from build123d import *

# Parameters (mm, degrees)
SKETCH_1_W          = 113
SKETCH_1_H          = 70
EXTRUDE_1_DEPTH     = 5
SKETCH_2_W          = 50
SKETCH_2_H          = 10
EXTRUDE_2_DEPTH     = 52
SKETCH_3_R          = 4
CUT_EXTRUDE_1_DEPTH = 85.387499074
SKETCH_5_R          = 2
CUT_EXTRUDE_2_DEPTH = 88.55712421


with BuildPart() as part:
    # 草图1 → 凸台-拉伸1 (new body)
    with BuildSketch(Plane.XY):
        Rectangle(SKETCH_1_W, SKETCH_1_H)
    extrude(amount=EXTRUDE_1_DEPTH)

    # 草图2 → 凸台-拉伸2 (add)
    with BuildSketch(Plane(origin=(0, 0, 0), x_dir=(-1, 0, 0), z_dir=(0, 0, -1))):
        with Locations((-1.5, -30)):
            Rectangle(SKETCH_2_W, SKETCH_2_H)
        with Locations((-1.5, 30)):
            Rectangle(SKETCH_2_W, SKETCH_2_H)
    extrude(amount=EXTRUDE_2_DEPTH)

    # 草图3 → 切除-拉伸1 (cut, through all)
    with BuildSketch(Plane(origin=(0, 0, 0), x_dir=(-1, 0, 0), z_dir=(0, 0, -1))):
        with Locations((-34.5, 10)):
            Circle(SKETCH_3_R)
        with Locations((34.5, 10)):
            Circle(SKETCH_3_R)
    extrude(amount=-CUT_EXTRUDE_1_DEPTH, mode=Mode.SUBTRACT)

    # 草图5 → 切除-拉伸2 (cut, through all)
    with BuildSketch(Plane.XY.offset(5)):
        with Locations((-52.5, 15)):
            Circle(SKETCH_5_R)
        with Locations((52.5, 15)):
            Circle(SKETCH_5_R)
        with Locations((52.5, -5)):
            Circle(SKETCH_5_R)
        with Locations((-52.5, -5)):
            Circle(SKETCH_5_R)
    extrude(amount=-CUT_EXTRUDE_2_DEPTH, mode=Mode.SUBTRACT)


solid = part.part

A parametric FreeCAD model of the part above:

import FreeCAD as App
import Part
import Sketcher

V = App.Vector
Q = App.Units.Quantity


def add_polygon(sketch, points):
    """Adds a closed chain of lines whose ends are joined by coincident constraints."""
    first, n = sketch.GeometryCount, len(points)
    for a, b in zip(points, points[1:] + points[:1]):
        sketch.addGeometry(Part.LineSegment(App.Vector(*a, 0), App.Vector(*b, 0)), False)
    for i in range(n):
        sketch.addConstraint(Sketcher.Constraint("Coincident", first + i, 2, first + (i + 1) % n, 1))

doc = App.newDocument("Part")
body = doc.addObject("PartDesign::Body", "Body")

sketch1 = doc.addObject("Sketcher::SketchObject", "Sketch")
body.addObject(sketch1)
sketch1.AttachmentSupport = (doc.XY_Plane, [""])
sketch1.MapMode = "FlatFace"
add_polygon(sketch1, [(-56, 35), (-56, -35), (56, -35), (56, 35)])
sketch1.addConstraint(Sketcher.Constraint("Vertical", 0))
sketch1.addConstraint(Sketcher.Constraint("Horizontal", 1))
sketch1.addConstraint(Sketcher.Constraint("Vertical", 2))
sketch1.addConstraint(Sketcher.Constraint("Horizontal", 3))
sketch1.addConstraint(Sketcher.Constraint("Symmetric", 0, 2, 2, 2, -1, 1))
sketch1.addConstraint(Sketcher.Constraint("DistanceX", 1, 1, 1, 2, Q("113 mm")))
sketch1.addConstraint(Sketcher.Constraint("DistanceY", 0, 2, 0, 1, Q("70 mm")))
pad1 = doc.addObject("PartDesign::Pad", "Pad")
body.addObject(pad1)
pad1.Profile = sketch1
pad1.Length = 5

sketch2 = doc.addObject("Sketcher::SketchObject", "Sketch001")
body.addObject(sketch2)
sketch2.AttachmentSupport = (doc.XY_Plane, [""])
sketch2.MapMode = "FlatFace"
add_polygon(sketch2, [(26, -25), (26, -35), (-24, -35), (-24, -25)])
add_polygon(sketch2, [(26, 35), (26, 25), (-24, 25), (-24, 35)])
sketch2.addConstraint(Sketcher.Constraint("Vertical", 0))
sketch2.addConstraint(Sketcher.Constraint("Horizontal", 1))
sketch2.addConstraint(Sketcher.Constraint("Vertical", 2))
sketch2.addConstraint(Sketcher.Constraint("Horizontal", 3))
sketch2.addConstraint(Sketcher.Constraint("Vertical", 4))
sketch2.addConstraint(Sketcher.Constraint("Horizontal", 5))
sketch2.addConstraint(Sketcher.Constraint("Vertical", 6))
sketch2.addConstraint(Sketcher.Constraint("Horizontal", 7))
sketch2.addConstraint(Sketcher.Constraint("Symmetric", 3, 2, 4, 2, -1))
sketch2.addConstraint(Sketcher.Constraint("Symmetric", 1, 2, 6, 2, -1))
sketch2.addConstraint(Sketcher.Constraint("DistanceX", 1, 2, 1, 1, Q("50 mm")))
sketch2.addConstraint(Sketcher.Constraint("DistanceY", 0, 2, 0, 1, Q("10 mm")))
sketch2.addConstraint(Sketcher.Constraint("DistanceY", 0, 2, -1, 1, Q("35 mm")))
sketch2.addConstraint(Sketcher.Constraint("DistanceX", -1, 1, 0, 2, Q("26.5 mm")))
pad2 = doc.addObject("PartDesign::Pad", "Pad001")
body.addObject(pad2)
pad2.Profile = sketch2
pad2.Length = 52
pad2.Reversed = True

sketch3 = doc.addObject("Sketcher::SketchObject", "Sketch002")
body.addObject(sketch3)
sketch3.AttachmentSupport = (doc.XY_Plane, [""])
sketch3.MapMode = "FlatFace"
sketch3.addGeometry(Part.Circle(V(34.5, 10, 0), V(0, 0, 1), 4), False)
sketch3.addGeometry(Part.Circle(V(-34.5, 10, 0), V(0, 0, 1), 4), False)
sketch3.addConstraint(Sketcher.Constraint("Equal", 0, 1))
sketch3.addConstraint(Sketcher.Constraint("Symmetric", 0, 3, 1, 3, -2))
sketch3.addConstraint(Sketcher.Constraint("Diameter", 0, Q("8 mm")))
sketch3.addConstraint(Sketcher.Constraint("DistanceY", -1, 1, 0, 3, Q("10 mm")))
sketch3.addConstraint(Sketcher.Constraint("DistanceX", 1, 3, 0, 3, Q("69 mm")))
pocket1 = doc.addObject("PartDesign::Pocket", "Pocket")
body.addObject(pocket1)
pocket1.Profile = sketch3
pocket1.Type = "ThroughAll"
pocket1.Reversed = True

sketch4 = doc.addObject("Sketcher::SketchObject", "Sketch003")
body.addObject(sketch4)
sketch4.AttachmentSupport = (doc.XY_Plane, [""])
sketch4.MapMode = "FlatFace"
sketch4.AttachmentOffset = App.Placement(V(0, 0, 5), App.Rotation())
sketch4.addGeometry(Part.Circle(V(-52.5, 15, 0), V(0, 0, 1), 2), False)
sketch4.addGeometry(Part.Circle(V(52.5, 15, 0), V(0, 0, 1), 2), False)
sketch4.addGeometry(Part.Circle(V(52.5, -5, 0), V(0, 0, 1), 2), False)
sketch4.addGeometry(Part.Circle(V(-52.5, -5, 0), V(0, 0, 1), 2), False)
sketch4.addConstraint(Sketcher.Constraint("Equal", 0, 1))
sketch4.addConstraint(Sketcher.Constraint("Equal", 1, 2))
sketch4.addConstraint(Sketcher.Constraint("Equal", 2, 3))
sketch4.addConstraint(Sketcher.Constraint("Symmetric", 0, 3, 1, 3, -2))
sketch4.addConstraint(Sketcher.Constraint("Symmetric", 2, 3, 3, 3, -2))
sketch4.addConstraint(Sketcher.Constraint("Vertical", 1, 3, 2, 3))
sketch4.addConstraint(Sketcher.Constraint("Diameter", 0, Q("4 mm")))
sketch4.addConstraint(Sketcher.Constraint("DistanceY", -1, 1, 0, 3, Q("15 mm")))
sketch4.addConstraint(Sketcher.Constraint("DistanceY", 2, 3, -1, 1, Q("5 mm")))
sketch4.addConstraint(Sketcher.Constraint("DistanceX", 0, 3, 1, 3, Q("105 mm")))
pocket2 = doc.addObject("PartDesign::Pocket", "Pocket001")
body.addObject(pocket2)
pocket2.Profile = sketch4
pocket2.Type = "ThroughAll"

doc.recompute()
